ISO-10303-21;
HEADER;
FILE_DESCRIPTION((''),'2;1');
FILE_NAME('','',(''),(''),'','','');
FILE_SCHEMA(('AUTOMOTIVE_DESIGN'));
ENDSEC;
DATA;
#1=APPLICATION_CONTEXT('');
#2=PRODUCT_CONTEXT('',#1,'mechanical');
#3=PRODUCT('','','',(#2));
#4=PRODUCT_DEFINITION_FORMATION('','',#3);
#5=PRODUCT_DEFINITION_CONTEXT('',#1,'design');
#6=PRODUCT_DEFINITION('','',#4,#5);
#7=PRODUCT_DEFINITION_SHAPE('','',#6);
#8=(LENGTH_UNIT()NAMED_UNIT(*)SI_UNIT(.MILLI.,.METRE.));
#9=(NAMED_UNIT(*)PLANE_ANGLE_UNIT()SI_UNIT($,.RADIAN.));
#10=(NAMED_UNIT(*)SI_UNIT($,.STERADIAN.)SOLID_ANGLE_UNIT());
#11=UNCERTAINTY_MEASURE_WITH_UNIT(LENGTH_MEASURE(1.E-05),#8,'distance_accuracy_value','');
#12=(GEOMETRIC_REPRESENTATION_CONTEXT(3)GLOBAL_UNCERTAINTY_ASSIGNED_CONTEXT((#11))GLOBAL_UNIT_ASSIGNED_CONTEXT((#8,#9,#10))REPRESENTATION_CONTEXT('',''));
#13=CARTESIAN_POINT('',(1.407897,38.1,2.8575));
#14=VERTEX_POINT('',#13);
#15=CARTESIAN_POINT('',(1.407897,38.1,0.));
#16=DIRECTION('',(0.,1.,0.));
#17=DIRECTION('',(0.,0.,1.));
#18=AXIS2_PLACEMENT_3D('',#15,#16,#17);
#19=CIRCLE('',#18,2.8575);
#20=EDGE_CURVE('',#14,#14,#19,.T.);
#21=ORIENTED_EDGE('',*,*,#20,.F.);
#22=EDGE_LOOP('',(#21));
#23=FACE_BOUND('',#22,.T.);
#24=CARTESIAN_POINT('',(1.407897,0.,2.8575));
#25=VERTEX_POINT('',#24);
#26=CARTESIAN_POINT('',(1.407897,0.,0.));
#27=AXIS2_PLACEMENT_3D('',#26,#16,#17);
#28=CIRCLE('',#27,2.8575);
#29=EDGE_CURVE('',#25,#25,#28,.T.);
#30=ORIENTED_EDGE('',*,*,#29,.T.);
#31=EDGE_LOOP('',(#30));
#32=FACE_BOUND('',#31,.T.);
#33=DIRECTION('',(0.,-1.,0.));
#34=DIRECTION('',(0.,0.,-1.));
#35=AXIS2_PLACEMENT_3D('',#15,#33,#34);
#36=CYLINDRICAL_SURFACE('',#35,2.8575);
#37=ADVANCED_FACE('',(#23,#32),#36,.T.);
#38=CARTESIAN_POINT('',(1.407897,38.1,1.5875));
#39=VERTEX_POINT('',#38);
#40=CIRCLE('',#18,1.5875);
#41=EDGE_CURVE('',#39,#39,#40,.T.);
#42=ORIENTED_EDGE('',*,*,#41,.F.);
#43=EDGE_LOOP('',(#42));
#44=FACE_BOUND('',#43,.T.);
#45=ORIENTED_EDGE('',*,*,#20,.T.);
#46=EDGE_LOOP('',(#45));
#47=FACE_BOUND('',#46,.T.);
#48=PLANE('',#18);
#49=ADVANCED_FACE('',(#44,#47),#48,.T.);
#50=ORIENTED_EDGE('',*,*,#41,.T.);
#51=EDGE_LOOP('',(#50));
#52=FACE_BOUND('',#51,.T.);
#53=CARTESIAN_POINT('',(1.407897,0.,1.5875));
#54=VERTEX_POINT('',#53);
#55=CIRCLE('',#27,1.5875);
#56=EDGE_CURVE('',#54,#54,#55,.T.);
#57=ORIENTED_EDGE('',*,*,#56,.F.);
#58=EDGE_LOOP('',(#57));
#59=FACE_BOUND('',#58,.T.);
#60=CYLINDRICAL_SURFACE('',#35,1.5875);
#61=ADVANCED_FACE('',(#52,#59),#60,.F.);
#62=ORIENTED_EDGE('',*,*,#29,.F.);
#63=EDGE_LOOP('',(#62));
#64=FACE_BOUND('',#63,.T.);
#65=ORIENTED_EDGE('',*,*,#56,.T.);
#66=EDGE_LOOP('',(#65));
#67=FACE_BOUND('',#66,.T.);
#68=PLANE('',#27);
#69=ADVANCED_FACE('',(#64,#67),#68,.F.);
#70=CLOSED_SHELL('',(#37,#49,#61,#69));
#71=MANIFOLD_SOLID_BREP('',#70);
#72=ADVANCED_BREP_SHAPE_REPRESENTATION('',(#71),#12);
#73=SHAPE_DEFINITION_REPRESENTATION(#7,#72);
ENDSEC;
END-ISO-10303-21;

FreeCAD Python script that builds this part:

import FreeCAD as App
import Part
import Sketcher
Q = App.Units.Quantity

doc = App.newDocument("Part")
params = doc.addObject("Spreadsheet::Sheet", "Params")
for row, (alias, value) in enumerate([
    ("sketch1_diameter", "0.225 in"),
    ("sketch1_diameter2", "0.125 in"),
    ("pad1_length", "1.5 in"),
], start=1):
    params.set(f"A{row}", alias)
    params.set(f"B{row}", "=" + value)
    params.setAlias(f"B{row}", alias)

body = doc.addObject("PartDesign::Body", "Body")

# Sketch on XZ plane
sketch1 = body.newObject("Sketcher::SketchObject", "Sketch")
sketch1.AttachmentSupport = (doc.getObject("XZ_Plane"), [""])
sketch1.MapMode = "FlatFace"
sketch1.addGeometry(Part.Circle(App.Vector(1.4, 0, 0), App.Vector(0, 0, 1), 2.9), False)
sketch1.addGeometry(Part.Circle(App.Vector(1.4, 0, 0), App.Vector(0, 0, 1), 1.6), False)
sketch1.addConstraint(Sketcher.Constraint("Coincident", 1, 3, 0, 3))
sketch1.addConstraint(Sketcher.Constraint("PointOnObject", 0, 3, -1))
sketch1.addConstraint(Sketcher.Constraint("Diameter", 0, Q("0.225 in")))
sketch1.addConstraint(Sketcher.Constraint("Diameter", 1, Q("0.125 in")))
sketch1.addConstraint(Sketcher.Constraint("DistanceX", -1, 1, 0, 3, Q("1.407897 mm")))
sketch1.setExpression("Constraints[2]", "Params.sketch1_diameter")
sketch1.setExpression("Constraints[3]", "Params.sketch1_diameter2")
pad1 = body.newObject("PartDesign::Pad", "Pad")
pad1.Profile = sketch1
pad1.setExpression("Length", "Params.pad1_length")
pad1.Reversed = True

doc.recompute()
